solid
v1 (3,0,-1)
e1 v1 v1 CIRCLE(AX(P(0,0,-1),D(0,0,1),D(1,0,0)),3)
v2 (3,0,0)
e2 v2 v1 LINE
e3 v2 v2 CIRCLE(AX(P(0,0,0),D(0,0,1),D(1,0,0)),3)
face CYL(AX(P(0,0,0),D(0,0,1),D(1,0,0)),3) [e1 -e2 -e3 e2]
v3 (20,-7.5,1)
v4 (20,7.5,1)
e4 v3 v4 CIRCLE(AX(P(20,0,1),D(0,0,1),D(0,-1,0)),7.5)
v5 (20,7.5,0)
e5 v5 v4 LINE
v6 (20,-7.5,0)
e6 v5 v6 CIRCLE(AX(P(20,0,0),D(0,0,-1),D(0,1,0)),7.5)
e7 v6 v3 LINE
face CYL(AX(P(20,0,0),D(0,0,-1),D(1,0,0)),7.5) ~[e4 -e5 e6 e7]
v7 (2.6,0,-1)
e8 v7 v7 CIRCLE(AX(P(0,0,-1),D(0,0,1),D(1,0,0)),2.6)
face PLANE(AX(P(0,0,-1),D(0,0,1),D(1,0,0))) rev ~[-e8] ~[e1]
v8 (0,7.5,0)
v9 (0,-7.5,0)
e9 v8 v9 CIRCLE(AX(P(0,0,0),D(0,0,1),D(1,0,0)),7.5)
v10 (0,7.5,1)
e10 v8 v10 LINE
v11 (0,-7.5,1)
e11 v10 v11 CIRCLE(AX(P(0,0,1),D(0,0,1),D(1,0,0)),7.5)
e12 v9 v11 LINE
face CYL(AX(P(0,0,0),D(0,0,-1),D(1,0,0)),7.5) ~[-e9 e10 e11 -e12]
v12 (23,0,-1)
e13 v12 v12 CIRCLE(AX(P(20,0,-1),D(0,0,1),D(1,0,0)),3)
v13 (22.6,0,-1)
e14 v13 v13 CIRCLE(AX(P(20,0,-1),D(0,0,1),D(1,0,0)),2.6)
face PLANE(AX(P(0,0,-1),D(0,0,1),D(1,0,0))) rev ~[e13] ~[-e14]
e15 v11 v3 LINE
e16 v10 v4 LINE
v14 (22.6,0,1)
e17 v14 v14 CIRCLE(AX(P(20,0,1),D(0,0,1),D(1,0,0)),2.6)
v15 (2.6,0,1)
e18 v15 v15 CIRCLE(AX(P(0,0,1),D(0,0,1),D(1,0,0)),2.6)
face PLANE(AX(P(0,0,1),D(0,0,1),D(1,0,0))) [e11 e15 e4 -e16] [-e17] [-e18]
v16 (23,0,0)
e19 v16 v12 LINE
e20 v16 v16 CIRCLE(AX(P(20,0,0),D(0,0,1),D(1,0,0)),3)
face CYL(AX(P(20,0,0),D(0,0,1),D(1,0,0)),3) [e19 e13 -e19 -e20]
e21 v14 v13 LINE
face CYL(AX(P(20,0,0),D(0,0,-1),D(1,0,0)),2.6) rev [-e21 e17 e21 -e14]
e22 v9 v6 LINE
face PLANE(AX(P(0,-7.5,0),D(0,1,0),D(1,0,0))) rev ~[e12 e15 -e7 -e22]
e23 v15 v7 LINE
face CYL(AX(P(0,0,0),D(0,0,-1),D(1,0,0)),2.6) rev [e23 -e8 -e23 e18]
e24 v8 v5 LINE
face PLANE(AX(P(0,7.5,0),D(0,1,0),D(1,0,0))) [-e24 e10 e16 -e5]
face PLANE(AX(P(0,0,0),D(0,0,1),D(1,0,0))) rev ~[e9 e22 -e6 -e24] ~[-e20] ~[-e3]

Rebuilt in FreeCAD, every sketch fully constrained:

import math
import FreeCAD as App
import Part
import Sketcher

doc = App.newDocument("Part")
body = doc.addObject("PartDesign::Body", "Body")

sketch1 = body.newObject("Sketcher::SketchObject", "Sketch")
sketch1.AttachmentSupport = (doc.getObject("XY_Plane"), [""])
sketch1.MapMode = "FlatFace"
sketch1.addGeometry([
    Part.ArcOfCircle(Part.Circle(App.Vector(0, 0, 0), App.Vector(0, 0, 1), 7.5), math.radians(90), math.radians(270)),
    Part.LineSegment(App.Vector(0, -7.5, 0), App.Vector(20, -7.5, 0)),
    Part.ArcOfCircle(Part.Circle(App.Vector(20, 0, 0), App.Vector(0, 0, 1), 7.5), math.radians(-90), math.radians(90)),
    Part.LineSegment(App.Vector(20, 7.5, 0), App.Vector(0, 7.5, 0)),
    Part.Circle(App.Vector(0, 0, 0), App.Vector(0, 0, 1), 2.6),
    Part.Circle(App.Vector(20, 0, 0), App.Vector(0, 0, 1), 2.6),
], False)
sketch1.addConstraint([
    Sketcher.Constraint("Tangent", 0, 2, 1, 1),
    Sketcher.Constraint("Tangent", 1, 2, 2, 1),
    Sketcher.Constraint("Tangent", 2, 2, 3, 1),
    Sketcher.Constraint("Tangent", 3, 2, 0, 1),
    Sketcher.Constraint("Horizontal", 1),
    Sketcher.Constraint("Horizontal", 3),
    Sketcher.Constraint("Coincident", 0, 3, -1, 1),
    Sketcher.Constraint("Coincident", 4, 3, -1, 1),
    Sketcher.Constraint("Coincident", 5, 3, 2, 3),
    Sketcher.Constraint("Equal", 4, 5),
    Sketcher.Constraint("Diameter", 4, 5.2),
    Sketcher.Constraint("Radius", 0, 7.5),
    Sketcher.Constraint("DistanceX", 1, 1, 1, 2, 20.0),
])
pad1 = body.newObject("PartDesign::Pad", "Pad")
pad1.Profile = sketch1
pad1.Length = 1

sketch2 = body.newObject("Sketcher::SketchObject", "Sketch001")
sketch2.AttachmentSupport = (doc.getObject("XY_Plane"), [""])
sketch2.MapMode = "FlatFace"
sketch2.addGeometry([
    Part.Circle(App.Vector(0, 0, 0), App.Vector(0, 0, 1), 3),
    Part.Circle(App.Vector(0, 0, 0), App.Vector(0, 0, 1), 2.6),
    Part.Circle(App.Vector(20, 0, 0), App.Vector(0, 0, 1), 3),
    Part.Circle(App.Vector(20, 0, 0), App.Vector(0, 0, 1), 2.6),
], False)
sketch2.addConstraint([
    Sketcher.Constraint("Coincident", 0, 3, -1, 1),
    Sketcher.Constraint("Coincident", 1, 3, -1, 1),
    Sketcher.Constraint("Coincident", 3, 3, 2, 3),
    Sketcher.Constraint("Equal", 0, 2),
    Sketcher.Constraint("Equal", 1, 3),
    Sketcher.Constraint("PointOnObject", 2, 3, -1),
    Sketcher.Constraint("Diameter", 0, 6.0),
    Sketcher.Constraint("Diameter", 1, 5.2),
    Sketcher.Constraint("DistanceX", -1, 1, 2, 3, 20.0),
])
pad2 = body.newObject("PartDesign::Pad", "Pad001")
pad2.Profile = sketch2
pad2.Length = 1
pad2.Reversed = True

doc.recompute()
